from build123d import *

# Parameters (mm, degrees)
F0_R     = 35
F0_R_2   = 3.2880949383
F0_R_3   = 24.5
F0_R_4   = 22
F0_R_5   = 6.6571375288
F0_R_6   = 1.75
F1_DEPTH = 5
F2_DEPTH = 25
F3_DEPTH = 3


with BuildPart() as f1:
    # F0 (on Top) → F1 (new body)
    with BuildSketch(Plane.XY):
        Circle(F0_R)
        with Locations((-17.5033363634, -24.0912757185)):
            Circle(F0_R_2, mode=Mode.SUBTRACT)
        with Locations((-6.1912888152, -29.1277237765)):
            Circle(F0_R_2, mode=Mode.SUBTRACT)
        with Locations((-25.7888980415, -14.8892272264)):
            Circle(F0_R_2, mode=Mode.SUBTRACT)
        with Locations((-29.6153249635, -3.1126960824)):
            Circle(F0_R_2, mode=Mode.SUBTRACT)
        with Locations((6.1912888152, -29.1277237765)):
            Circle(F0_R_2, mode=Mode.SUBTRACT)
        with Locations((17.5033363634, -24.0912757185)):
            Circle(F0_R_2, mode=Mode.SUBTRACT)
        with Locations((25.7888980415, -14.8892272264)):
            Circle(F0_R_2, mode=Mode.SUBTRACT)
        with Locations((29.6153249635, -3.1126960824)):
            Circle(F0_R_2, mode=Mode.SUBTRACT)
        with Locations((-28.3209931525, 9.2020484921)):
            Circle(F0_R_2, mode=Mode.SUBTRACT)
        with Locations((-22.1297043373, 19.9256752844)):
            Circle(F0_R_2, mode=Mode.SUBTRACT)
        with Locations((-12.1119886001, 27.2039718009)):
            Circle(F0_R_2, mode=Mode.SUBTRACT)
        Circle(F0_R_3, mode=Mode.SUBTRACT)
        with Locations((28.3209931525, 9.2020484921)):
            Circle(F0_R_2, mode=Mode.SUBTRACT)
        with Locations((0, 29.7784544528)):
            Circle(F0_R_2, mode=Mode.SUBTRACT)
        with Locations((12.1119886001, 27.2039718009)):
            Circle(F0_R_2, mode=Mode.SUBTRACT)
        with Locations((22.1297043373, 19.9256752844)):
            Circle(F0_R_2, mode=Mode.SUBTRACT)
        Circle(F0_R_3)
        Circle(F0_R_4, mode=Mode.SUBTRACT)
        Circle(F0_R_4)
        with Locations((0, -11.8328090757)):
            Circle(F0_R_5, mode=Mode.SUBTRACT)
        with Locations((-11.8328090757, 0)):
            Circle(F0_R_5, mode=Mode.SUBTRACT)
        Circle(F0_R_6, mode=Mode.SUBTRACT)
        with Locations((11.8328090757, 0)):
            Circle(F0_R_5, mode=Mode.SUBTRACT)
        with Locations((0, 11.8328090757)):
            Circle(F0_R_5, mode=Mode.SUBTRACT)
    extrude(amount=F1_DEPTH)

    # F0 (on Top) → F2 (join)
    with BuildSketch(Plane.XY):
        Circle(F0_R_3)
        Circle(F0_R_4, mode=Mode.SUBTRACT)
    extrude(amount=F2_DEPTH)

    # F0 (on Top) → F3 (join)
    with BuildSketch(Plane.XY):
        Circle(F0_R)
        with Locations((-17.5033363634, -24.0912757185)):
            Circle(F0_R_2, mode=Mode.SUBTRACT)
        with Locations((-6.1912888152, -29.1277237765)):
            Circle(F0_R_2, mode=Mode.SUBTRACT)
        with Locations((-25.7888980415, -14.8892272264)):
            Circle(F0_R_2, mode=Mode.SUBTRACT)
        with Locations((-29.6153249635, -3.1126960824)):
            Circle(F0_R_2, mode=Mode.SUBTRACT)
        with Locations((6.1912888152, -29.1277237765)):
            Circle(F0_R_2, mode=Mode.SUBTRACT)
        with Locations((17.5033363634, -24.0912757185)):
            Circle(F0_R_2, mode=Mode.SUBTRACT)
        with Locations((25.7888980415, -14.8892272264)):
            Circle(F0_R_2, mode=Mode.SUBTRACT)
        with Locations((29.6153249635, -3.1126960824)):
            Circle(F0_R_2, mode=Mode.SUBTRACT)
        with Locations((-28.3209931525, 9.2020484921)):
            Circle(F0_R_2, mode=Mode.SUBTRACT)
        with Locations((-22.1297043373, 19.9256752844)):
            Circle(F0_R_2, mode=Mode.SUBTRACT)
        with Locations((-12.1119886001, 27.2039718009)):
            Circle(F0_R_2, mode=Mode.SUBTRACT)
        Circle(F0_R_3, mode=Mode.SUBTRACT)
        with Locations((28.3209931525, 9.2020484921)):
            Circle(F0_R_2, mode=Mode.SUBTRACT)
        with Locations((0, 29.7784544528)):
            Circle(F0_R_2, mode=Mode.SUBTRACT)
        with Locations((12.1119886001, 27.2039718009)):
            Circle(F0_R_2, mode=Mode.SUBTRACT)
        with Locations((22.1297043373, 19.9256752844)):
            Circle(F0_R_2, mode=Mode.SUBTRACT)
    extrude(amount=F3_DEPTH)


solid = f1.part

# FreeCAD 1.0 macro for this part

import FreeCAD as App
import Part
import Sketcher
from FreeCAD import Vector
Q = App.Units.Quantity

doc = App.newDocument("Part")
body = doc.addObject("PartDesign::Body", "Body")

sketch1 = body.newObject("Sketcher::SketchObject", "Sketch")
sketch1.AttachmentSupport = (doc.getObject("XY_Plane"), [""])
sketch1.MapMode = "FlatFace"
sketch1.addGeometry([
    Part.Circle(Vector(0, 0, 0), Vector(0, 0, 1), 35),
    Part.Circle(Vector(-17.5, -24.1, 0), Vector(0, 0, 1), 3.3),
    Part.Circle(Vector(-6.2, -29.1, 0), Vector(0, 0, 1), 3.3),
    Part.Circle(Vector(-25.8, -14.9, 0), Vector(0, 0, 1), 3.3),
    Part.Circle(Vector(-29.6, -3.1, 0), Vector(0, 0, 1), 3.3),
    Part.Circle(Vector(-11.8, 0, 0), Vector(0, 0, 1), 6.7),
    Part.Circle(Vector(6.2, -29.1, 0), Vector(0, 0, 1), 3.3),
    Part.Circle(Vector(17.5, -24.1, 0), Vector(0, 0, 1), 3.3),
    Part.Circle(Vector(0, -11.8, 0), Vector(0, 0, 1), 6.7),
    Part.Circle(Vector(0, 0, 0), Vector(0, 0, 1), 1.8),
    Part.Circle(Vector(11.8, 0, 0), Vector(0, 0, 1), 6.7),
    Part.Circle(Vector(25.8, -14.9, 0), Vector(0, 0, 1), 3.3),
    Part.Circle(Vector(29.6, -3.1, 0), Vector(0, 0, 1), 3.3),
    Part.Circle(Vector(-28.3, 9.2, 0), Vector(0, 0, 1), 3.3),
    Part.Circle(Vector(-22.1, 19.9, 0), Vector(0, 0, 1), 3.3),
    Part.Circle(Vector(-12.1, 27.2, 0), Vector(0, 0, 1), 3.3),
    Part.Circle(Vector(0, 11.8, 0), Vector(0, 0, 1), 6.7),
    Part.Circle(Vector(28.3, 9.2, 0), Vector(0, 0, 1), 3.3),
    Part.Circle(Vector(0, 29.8, 0), Vector(0, 0, 1), 3.3),
    Part.Circle(Vector(12.1, 27.2, 0), Vector(0, 0, 1), 3.3),
    Part.Circle(Vector(22.1, 19.9, 0), Vector(0, 0, 1), 3.3),
], False)
sketch1.addConstraint([
    Sketcher.Constraint("Coincident", 0, 3, -1, 1),
    Sketcher.Constraint("Coincident", 9, 3, -1, 1),
    Sketcher.Constraint("Equal", 1, 2),
    Sketcher.Constraint("Equal", 2, 3),
    Sketcher.Constraint("Equal", 3, 4),
    Sketcher.Constraint("Equal", 4, 6),
    Sketcher.Constraint("Equal", 6, 7),
    Sketcher.Constraint("Equal", 5, 8),
    Sketcher.Constraint("Equal", 8, 10),
    Sketcher.Constraint("Equal", 7, 11),
    Sketcher.Constraint("Equal", 11, 12),
    Sketcher.Constraint("Equal", 12, 13),
    Sketcher.Constraint("Equal", 13, 14),
    Sketcher.Constraint("Equal", 14, 15),
    Sketcher.Constraint("Equal", 10, 16),
    Sketcher.Constraint("Equal", 15, 17),
    Sketcher.Constraint("Equal", 17, 18),
    Sketcher.Constraint("Equal", 18, 19),
    Sketcher.Constraint("Equal", 19, 20),
    Sketcher.Constraint("Symmetric", 5, 3, 10, 3, -1, 1),
    Sketcher.Constraint("Symmetric", 8, 3, 16, 3, -1, 1),
    Sketcher.Constraint("Symmetric", 2, 3, 6, 3, -2),
    Sketcher.Constraint("Symmetric", 1, 3, 7, 3, -2),
    Sketcher.Constraint("Symmetric", 3, 3, 11, 3, -2),
    Sketcher.Constraint("Symmetric", 4, 3, 12, 3, -2),
    Sketcher.Constraint("Symmetric", 13, 3, 17, 3, -2),
    Sketcher.Constraint("Symmetric", 15, 3, 19, 3, -2),
    Sketcher.Constraint("Symmetric", 14, 3, 20, 3, -2),
    Sketcher.Constraint("PointOnObject", 5, 3, -1),
    Sketcher.Constraint("PointOnObject", 8, 3, -2),
    Sketcher.Constraint("PointOnObject", 18, 3, -2),
    Sketcher.Constraint("Diameter", 0, Q("70 mm")),
    Sketcher.Constraint("Diameter", 9, Q("3.5 mm")),
    Sketcher.Constraint("Diameter", 1, Q("6.57619 mm")),
    Sketcher.Constraint("Diameter", 5, Q("13.314275 mm")),
    Sketcher.Constraint("DistanceX", 3, 3, -1, 1, Q("25.788898 mm")),
    Sketcher.Constraint("DistanceX", 2, 3, -1, 1, Q("6.191289 mm")),
    Sketcher.Constraint("DistanceX", 5, 3, -1, 1, Q("11.832809 mm")),
    Sketcher.Constraint("DistanceY", 8, 3, -1, 1, Q("11.832809 mm")),
    Sketcher.Constraint("DistanceY", -1, 1, 13, 3, Q("9.202048 mm")),
    Sketcher.Constraint("DistanceX", 15, 3, -1, 1, Q("12.111989 mm")),
    Sketcher.Constraint("DistanceY", -1, 1, 15, 3, Q("27.203972 mm")),
    Sketcher.Constraint("DistanceY", 2, 3, 1, 3, Q("5.036448 mm")),
    Sketcher.Constraint("DistanceX", 3, 3, 1, 3, Q("8.285562 mm")),
    Sketcher.Constraint("DistanceY", 1, 3, 3, 3, Q("9.202048 mm")),
    Sketcher.Constraint("DistanceY", 3, 3, 4, 3, Q("11.776531 mm")),
    Sketcher.Constraint("DistanceX", 4, 3, 1, 3, Q("12.111989 mm")),
    Sketcher.Constraint("DistanceY", 11, 3, 8, 3, Q("3.056418 mm")),
    Sketcher.Constraint("DistanceX", 4, 3, 13, 3, Q("1.294332 mm")),
    Sketcher.Constraint("DistanceX", 13, 3, 14, 3, Q("6.191289 mm")),
    Sketcher.Constraint("DistanceY", 4, 3, 14, 3, Q("23.038371 mm")),
    Sketcher.Constraint("DistanceY", 14, 3, 18, 3, Q("9.852779 mm")),
])
pad1 = body.newObject("PartDesign::Pad", "Pad")
pad1.Profile = sketch1
pad1.Length = 5

sketch2 = body.newObject("Sketcher::SketchObject", "Sketch001")
sketch2.AttachmentSupport = (doc.getObject("XY_Plane"), [""])
sketch2.MapMode = "FlatFace"
sketch2.addGeometry([
    Part.Circle(Vector(0, 0, 0), Vector(0, 0, 1), 24),
    Part.Circle(Vector(0, 0, 0), Vector(0, 0, 1), 22),
], False)
sketch2.addConstraint([
    Sketcher.Constraint("Coincident", 0, 3, -1, 1),
    Sketcher.Constraint("Coincident", 1, 3, -1, 1),
    Sketcher.Constraint("Diameter", 0, Q("49 mm")),
    Sketcher.Constraint("Diameter", 1, Q("44 mm")),
])
pad2 = body.newObject("PartDesign::Pad", "Pad001")
pad2.Profile = sketch2
pad2.Length = 25

sketch3 = body.newObject("Sketcher::SketchObject", "Sketch002")
sketch3.AttachmentSupport = (doc.getObject("XY_Plane"), [""])
sketch3.MapMode = "FlatFace"
sketch3.addGeometry([
    Part.Circle(Vector(0, 0, 0), Vector(0, 0, 1), 35),
    Part.Circle(Vector(-17.5, -24.1, 0), Vector(0, 0, 1), 3.3),
    Part.Circle(Vector(-6.2, -29.1, 0), Vector(0, 0, 1), 3.3),
    Part.Circle(Vector(-25.8, -14.9, 0), Vector(0, 0, 1), 3.3),
    Part.Circle(Vector(-29.6, -3.1, 0), Vector(0, 0, 1), 3.3),
    Part.Circle(Vector(6.2, -29.1, 0), Vector(0, 0, 1), 3.3),
    Part.Circle(Vector(17.5, -24.1, 0), Vector(0, 0, 1), 3.3),
    Part.Circle(Vector(0, 0, 0), Vector(0, 0, 1), 24.5),
    Part.Circle(Vector(25.8, -14.9, 0), Vector(0, 0, 1), 3.3),
    Part.Circle(Vector(29.6, -3.1, 0), Vector(0, 0, 1), 3.3),
    Part.Circle(Vector(-28.3, 9.2, 0), Vector(0, 0, 1), 3.3),
    Part.Circle(Vector(-22.1, 19.9, 0), Vector(0, 0, 1), 3.3),
    Part.Circle(Vector(-12.1, 27.2, 0), Vector(0, 0, 1), 3.3),
    Part.Circle(Vector(28.3, 9.2, 0), Vector(0, 0, 1), 3.3),
    Part.Circle(Vector(0, 29.8, 0), Vector(0, 0, 1), 3.3),
    Part.Circle(Vector(12.1, 27.2, 0), Vector(0, 0, 1), 3.3),
    Part.Circle(Vector(22.1, 19.9, 0), Vector(0, 0, 1), 3.3),
], False)
sketch3.addConstraint([
    Sketcher.Constraint("Coincident", 0, 3, -1, 1),
    Sketcher.Constraint("Coincident", 7, 3, -1, 1),
    Sketcher.Constraint("Equal", 1, 2),
    Sketcher.Constraint("Equal", 2, 3),
    Sketcher.Constraint("Equal", 3, 4),
    Sketcher.Constraint("Equal", 4, 5),
    Sketcher.Constraint("Equal", 5, 6),
    Sketcher.Constraint("Equal", 6, 8),
    Sketcher.Constraint("Equal", 8, 9),
    Sketcher.Constraint("Equal", 9, 10),
    Sketcher.Constraint("Equal", 10, 11),
    Sketcher.Constraint("Equal", 11, 12),
    Sketcher.Constraint("Equal", 12, 13),
    Sketcher.Constraint("Equal", 13, 14),
    Sketcher.Constraint("Equal", 14, 15),
    Sketcher.Constraint("Equal", 15, 16),
    Sketcher.Constraint("Symmetric", 2, 3, 5, 3, -2),
    Sketcher.Constraint("Symmetric", 1, 3, 6, 3, -2),
    Sketcher.Constraint("Symmetric", 3, 3, 8, 3, -2),
    Sketcher.Constraint("Symmetric", 4, 3, 9, 3, -2),
    Sketcher.Constraint("Symmetric", 10, 3, 13, 3, -2),
    Sketcher.Constraint("Symmetric", 12, 3, 15, 3, -2),
    Sketcher.Constraint("Symmetric", 11, 3, 16, 3, -2),
    Sketcher.Constraint("PointOnObject", 14, 3, -2),
    Sketcher.Constraint("Diameter", 0, Q("70 mm")),
    Sketcher.Constraint("Diameter", 7, Q("49 mm")),
    Sketcher.Constraint("Diameter", 1, Q("6.57619 mm")),
    Sketcher.Constraint("DistanceX", 3, 3, -1, 1, Q("25.788898 mm")),
    Sketcher.Constraint("DistanceX", 2, 3, -1, 1, Q("6.191289 mm")),
    Sketcher.Constraint("DistanceY", -1, 1, 10, 3, Q("9.202048 mm")),
    Sketcher.Constraint("DistanceX", 12, 3, -1, 1, Q("12.111989 mm")),
    Sketcher.Constraint("DistanceY", -1, 1, 12, 3, Q("27.203972 mm")),
    Sketcher.Constraint("DistanceY", 2, 3, 1, 3, Q("5.036448 mm")),
    Sketcher.Constraint("DistanceX", 3, 3, 1, 3, Q("8.285562 mm")),
    Sketcher.Constraint("DistanceY", 1, 3, 3, 3, Q("9.202048 mm")),
    Sketcher.Constraint("DistanceY", 3, 3, 4, 3, Q("11.776531 mm")),
    Sketcher.Constraint("DistanceX", 4, 3, 1, 3, Q("12.111989 mm")),
    Sketcher.Constraint("DistanceX", 4, 3, 10, 3, Q("1.294332 mm")),
    Sketcher.Constraint("DistanceX", 10, 3, 11, 3, Q("6.191289 mm")),
    Sketcher.Constraint("DistanceY", 4, 3, 11, 3, Q("23.038371 mm")),
    Sketcher.Constraint("DistanceY", 11, 3, 14, 3, Q("9.852779 mm")),
    Sketcher.Constraint("DistanceY", 1, 3, -1, 1, Q("24.091276 mm")),
])
pad3 = body.newObject("PartDesign::Pad", "Pad002")
pad3.Profile = sketch3
pad3.Length = 3

doc.recompute()
